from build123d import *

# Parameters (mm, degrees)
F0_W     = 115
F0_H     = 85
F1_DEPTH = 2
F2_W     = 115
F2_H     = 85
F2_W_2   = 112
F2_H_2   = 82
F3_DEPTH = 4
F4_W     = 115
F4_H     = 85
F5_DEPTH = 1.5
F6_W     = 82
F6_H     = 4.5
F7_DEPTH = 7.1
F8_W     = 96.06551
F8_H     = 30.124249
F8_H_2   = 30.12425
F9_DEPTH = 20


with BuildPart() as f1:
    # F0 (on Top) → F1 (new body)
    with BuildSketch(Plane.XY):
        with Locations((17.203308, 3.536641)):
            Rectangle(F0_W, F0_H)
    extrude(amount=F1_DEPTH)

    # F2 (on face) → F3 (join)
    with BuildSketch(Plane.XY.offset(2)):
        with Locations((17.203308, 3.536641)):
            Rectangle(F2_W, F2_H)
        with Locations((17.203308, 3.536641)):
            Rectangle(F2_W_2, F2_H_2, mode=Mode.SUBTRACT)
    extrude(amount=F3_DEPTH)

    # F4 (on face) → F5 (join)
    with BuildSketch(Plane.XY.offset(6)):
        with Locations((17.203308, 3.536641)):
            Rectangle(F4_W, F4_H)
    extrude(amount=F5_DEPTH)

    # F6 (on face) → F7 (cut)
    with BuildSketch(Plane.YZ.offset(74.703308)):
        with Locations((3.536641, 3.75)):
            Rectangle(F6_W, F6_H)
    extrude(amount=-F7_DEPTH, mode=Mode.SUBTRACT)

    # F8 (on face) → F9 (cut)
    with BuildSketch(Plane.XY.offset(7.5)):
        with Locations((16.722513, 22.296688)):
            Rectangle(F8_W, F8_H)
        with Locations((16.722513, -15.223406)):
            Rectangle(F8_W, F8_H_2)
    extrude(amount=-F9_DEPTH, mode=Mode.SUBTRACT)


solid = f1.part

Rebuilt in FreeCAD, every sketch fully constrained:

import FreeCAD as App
import Part
import Sketcher

V = App.Vector


def add_polygon(sketch, points):
    """Adds a closed chain of lines whose ends are joined by coincident constraints."""
    first, n = sketch.GeometryCount, len(points)
    for a, b in zip(points, points[1:] + points[:1]):
        sketch.addGeometry(Part.LineSegment(App.Vector(*a, 0), App.Vector(*b, 0)), False)
    for i in range(n):
        sketch.addConstraint(Sketcher.Constraint("Coincident", first + i, 2, first + (i + 1) % n, 1))

doc = App.newDocument("Part")
body = doc.addObject("PartDesign::Body", "Body")

sketch1 = body.newObject("Sketcher::SketchObject", "Sketch")
sketch1.AttachmentSupport = (doc.getObject("XY_Plane"), [""])
sketch1.MapMode = "FlatFace"
add_polygon(sketch1, [(-40, 46), (-40, -39), (75, -39), (75, 46)])
sketch1.addConstraint(Sketcher.Constraint("Vertical", 0))
sketch1.addConstraint(Sketcher.Constraint("Horizontal", 1))
sketch1.addConstraint(Sketcher.Constraint("Vertical", 2))
sketch1.addConstraint(Sketcher.Constraint("Horizontal", 3))
sketch1.addConstraint(Sketcher.Constraint("DistanceX", 1, 1, 1, 2, 115.0))
sketch1.addConstraint(Sketcher.Constraint("DistanceY", 0, 2, 0, 1, 85.0))
sketch1.addConstraint(Sketcher.Constraint("DistanceY", 0, 2, -1, 1, 38.963359))
sketch1.addConstraint(Sketcher.Constraint("DistanceX", -1, 1, 1, 2, 74.703308))
pad1 = body.newObject("PartDesign::Pad", "Pad")
pad1.Profile = sketch1
pad1.Length = 2

sketch2 = body.newObject("Sketcher::SketchObject", "Sketch001")
sketch2.AttachmentSupport = (doc.getObject("XY_Plane"), [""])
sketch2.MapMode = "FlatFace"
sketch2.AttachmentOffset = App.Placement(V(0, 0, 2), App.Rotation())
add_polygon(sketch2, [(-40, 46), (-40, -39), (75, -39), (75, 46)])
add_polygon(sketch2, [(73, -37), (-39, -37), (-39, 45), (73, 45)])
sketch2.addConstraint(Sketcher.Constraint("Vertical", 0))
sketch2.addConstraint(Sketcher.Constraint("Horizontal", 1))
sketch2.addConstraint(Sketcher.Constraint("Vertical", 2))
sketch2.addConstraint(Sketcher.Constraint("Horizontal", 3))
sketch2.addConstraint(Sketcher.Constraint("Horizontal", 4))
sketch2.addConstraint(Sketcher.Constraint("Vertical", 5))
sketch2.addConstraint(Sketcher.Constraint("Horizontal", 6))
sketch2.addConstraint(Sketcher.Constraint("Vertical", 7))
sketch2.addConstraint(Sketcher.Constraint("DistanceX", 1, 1, 1, 2, 115.0))
sketch2.addConstraint(Sketcher.Constraint("DistanceX", 4, 2, 4, 1, 112.0))
sketch2.addConstraint(Sketcher.Constraint("DistanceY", 0, 2, 0, 1, 85.0))
sketch2.addConstraint(Sketcher.Constraint("DistanceY", 5, 1, 5, 2, 82.0))
sketch2.addConstraint(Sketcher.Constraint("DistanceX", 0, 2, 4, 2, 1.5))
sketch2.addConstraint(Sketcher.Constraint("DistanceY", 0, 2, 4, 2, 1.5))
sketch2.addConstraint(Sketcher.Constraint("DistanceY", 0, 2, -1, 1, 38.963359))
sketch2.addConstraint(Sketcher.Constraint("DistanceX", -1, 1, 1, 2, 74.703308))
pad2 = body.newObject("PartDesign::Pad", "Pad001")
pad2.Profile = sketch2
pad2.Length = 4

sketch3 = body.newObject("Sketcher::SketchObject", "Sketch002")
sketch3.AttachmentSupport = (doc.getObject("XY_Plane"), [""])
sketch3.MapMode = "FlatFace"
sketch3.AttachmentOffset = App.Placement(V(0, 0, 6), App.Rotation())
add_polygon(sketch3, [(-40, 46), (-40, -39), (75, -39), (75, 46)])
sketch3.addConstraint(Sketcher.Constraint("Vertical", 0))
sketch3.addConstraint(Sketcher.Constraint("Horizontal", 1))
sketch3.addConstraint(Sketcher.Constraint("Vertical", 2))
sketch3.addConstraint(Sketcher.Constraint("Horizontal", 3))
sketch3.addConstraint(Sketcher.Constraint("DistanceX", 1, 1, 1, 2, 115.0))
sketch3.addConstraint(Sketcher.Constraint("DistanceY", 0, 2, 0, 1, 85.0))
sketch3.addConstraint(Sketcher.Constraint("DistanceY", 0, 2, -1, 1, 38.963359))
sketch3.addConstraint(Sketcher.Constraint("DistanceX", -1, 1, 1, 2, 74.703308))
pad3 = body.newObject("PartDesign::Pad", "Pad002")
pad3.Profile = sketch3
pad3.Length = 1.5

sketch4 = body.newObject("Sketcher::SketchObject", "Sketch003")
sketch4.AttachmentSupport = (doc.getObject("YZ_Plane"), [""])
sketch4.MapMode = "FlatFace"
sketch4.AttachmentOffset = App.Placement(V(0, 0, 74.703308), App.Rotation())
add_polygon(sketch4, [(-37.5, 6), (-37.5, 1.5), (44.5, 1.5), (44.5, 6)])
sketch4.addConstraint(Sketcher.Constraint("Vertical", 0))
sketch4.addConstraint(Sketcher.Constraint("Horizontal", 1))
sketch4.addConstraint(Sketcher.Constraint("Vertical", 2))
sketch4.addConstraint(Sketcher.Constraint("Horizontal", 3))
sketch4.addConstraint(Sketcher.Constraint("DistanceX", 1, 1, 1, 2, 82.0))
sketch4.addConstraint(Sketcher.Constraint("DistanceY", 0, 2, 0, 1, 4.5))
sketch4.addConstraint(Sketcher.Constraint("DistanceY", -1, 1, 2, 2, 6.0))
sketch4.addConstraint(Sketcher.Constraint("DistanceX", 0, 2, -1, 1, 37.463359))
pocket1 = body.newObject("PartDesign::Pocket", "Pocket")
pocket1.Profile = sketch4
pocket1.Length = 7.1

sketch5 = body.newObject("Sketcher::SketchObject", "Sketch004")
sketch5.AttachmentSupport = (doc.getObject("XY_Plane"), [""])
sketch5.MapMode = "FlatFace"
sketch5.AttachmentOffset = App.Placement(V(0, 0, 7.5), App.Rotation())
add_polygon(sketch5, [(-31, 37), (-31, 7), (65, 7), (65, 37)])
add_polygon(sketch5, [(-31, 0), (-31, -30), (65, -30), (65, 0)])
sketch5.addConstraint(Sketcher.Constraint("Vertical", 0))
sketch5.addConstraint(Sketcher.Constraint("Horizontal", 1))
sketch5.addConstraint(Sketcher.Constraint("Vertical", 2))
sketch5.addConstraint(Sketcher.Constraint("Horizontal", 3))
sketch5.addConstraint(Sketcher.Constraint("Vertical", 4))
sketch5.addConstraint(Sketcher.Constraint("Horizontal", 5))
sketch5.addConstraint(Sketcher.Constraint("Vertical", 6))
sketch5.addConstraint(Sketcher.Constraint("Horizontal", 7))
sketch5.addConstraint(Sketcher.Constraint("Vertical", 3, 2, 4, 2))
sketch5.addConstraint(Sketcher.Constraint("Vertical", 2, 2, 5, 2))
sketch5.addConstraint(Sketcher.Constraint("Equal", 2, 4))
sketch5.addConstraint(Sketcher.Constraint("DistanceX", 1, 1, 1, 2, 96.06551))
sketch5.addConstraint(Sketcher.Constraint("DistanceY", 0, 2, 0, 1, 30.124249))
sketch5.addConstraint(Sketcher.Constraint("DistanceX", 0, 2, -1, 1, 31.310242))
sketch5.addConstraint(Sketcher.Constraint("DistanceY", 4, 2, -1, 1, 30.285531))
sketch5.addConstraint(Sketcher.Constraint("DistanceY", -1, 1, 0, 2, 7.234564))
pocket2 = body.newObject("PartDesign::Pocket", "Pocket001")
pocket2.Profile = sketch5
pocket2.Length = 20

doc.recompute()
